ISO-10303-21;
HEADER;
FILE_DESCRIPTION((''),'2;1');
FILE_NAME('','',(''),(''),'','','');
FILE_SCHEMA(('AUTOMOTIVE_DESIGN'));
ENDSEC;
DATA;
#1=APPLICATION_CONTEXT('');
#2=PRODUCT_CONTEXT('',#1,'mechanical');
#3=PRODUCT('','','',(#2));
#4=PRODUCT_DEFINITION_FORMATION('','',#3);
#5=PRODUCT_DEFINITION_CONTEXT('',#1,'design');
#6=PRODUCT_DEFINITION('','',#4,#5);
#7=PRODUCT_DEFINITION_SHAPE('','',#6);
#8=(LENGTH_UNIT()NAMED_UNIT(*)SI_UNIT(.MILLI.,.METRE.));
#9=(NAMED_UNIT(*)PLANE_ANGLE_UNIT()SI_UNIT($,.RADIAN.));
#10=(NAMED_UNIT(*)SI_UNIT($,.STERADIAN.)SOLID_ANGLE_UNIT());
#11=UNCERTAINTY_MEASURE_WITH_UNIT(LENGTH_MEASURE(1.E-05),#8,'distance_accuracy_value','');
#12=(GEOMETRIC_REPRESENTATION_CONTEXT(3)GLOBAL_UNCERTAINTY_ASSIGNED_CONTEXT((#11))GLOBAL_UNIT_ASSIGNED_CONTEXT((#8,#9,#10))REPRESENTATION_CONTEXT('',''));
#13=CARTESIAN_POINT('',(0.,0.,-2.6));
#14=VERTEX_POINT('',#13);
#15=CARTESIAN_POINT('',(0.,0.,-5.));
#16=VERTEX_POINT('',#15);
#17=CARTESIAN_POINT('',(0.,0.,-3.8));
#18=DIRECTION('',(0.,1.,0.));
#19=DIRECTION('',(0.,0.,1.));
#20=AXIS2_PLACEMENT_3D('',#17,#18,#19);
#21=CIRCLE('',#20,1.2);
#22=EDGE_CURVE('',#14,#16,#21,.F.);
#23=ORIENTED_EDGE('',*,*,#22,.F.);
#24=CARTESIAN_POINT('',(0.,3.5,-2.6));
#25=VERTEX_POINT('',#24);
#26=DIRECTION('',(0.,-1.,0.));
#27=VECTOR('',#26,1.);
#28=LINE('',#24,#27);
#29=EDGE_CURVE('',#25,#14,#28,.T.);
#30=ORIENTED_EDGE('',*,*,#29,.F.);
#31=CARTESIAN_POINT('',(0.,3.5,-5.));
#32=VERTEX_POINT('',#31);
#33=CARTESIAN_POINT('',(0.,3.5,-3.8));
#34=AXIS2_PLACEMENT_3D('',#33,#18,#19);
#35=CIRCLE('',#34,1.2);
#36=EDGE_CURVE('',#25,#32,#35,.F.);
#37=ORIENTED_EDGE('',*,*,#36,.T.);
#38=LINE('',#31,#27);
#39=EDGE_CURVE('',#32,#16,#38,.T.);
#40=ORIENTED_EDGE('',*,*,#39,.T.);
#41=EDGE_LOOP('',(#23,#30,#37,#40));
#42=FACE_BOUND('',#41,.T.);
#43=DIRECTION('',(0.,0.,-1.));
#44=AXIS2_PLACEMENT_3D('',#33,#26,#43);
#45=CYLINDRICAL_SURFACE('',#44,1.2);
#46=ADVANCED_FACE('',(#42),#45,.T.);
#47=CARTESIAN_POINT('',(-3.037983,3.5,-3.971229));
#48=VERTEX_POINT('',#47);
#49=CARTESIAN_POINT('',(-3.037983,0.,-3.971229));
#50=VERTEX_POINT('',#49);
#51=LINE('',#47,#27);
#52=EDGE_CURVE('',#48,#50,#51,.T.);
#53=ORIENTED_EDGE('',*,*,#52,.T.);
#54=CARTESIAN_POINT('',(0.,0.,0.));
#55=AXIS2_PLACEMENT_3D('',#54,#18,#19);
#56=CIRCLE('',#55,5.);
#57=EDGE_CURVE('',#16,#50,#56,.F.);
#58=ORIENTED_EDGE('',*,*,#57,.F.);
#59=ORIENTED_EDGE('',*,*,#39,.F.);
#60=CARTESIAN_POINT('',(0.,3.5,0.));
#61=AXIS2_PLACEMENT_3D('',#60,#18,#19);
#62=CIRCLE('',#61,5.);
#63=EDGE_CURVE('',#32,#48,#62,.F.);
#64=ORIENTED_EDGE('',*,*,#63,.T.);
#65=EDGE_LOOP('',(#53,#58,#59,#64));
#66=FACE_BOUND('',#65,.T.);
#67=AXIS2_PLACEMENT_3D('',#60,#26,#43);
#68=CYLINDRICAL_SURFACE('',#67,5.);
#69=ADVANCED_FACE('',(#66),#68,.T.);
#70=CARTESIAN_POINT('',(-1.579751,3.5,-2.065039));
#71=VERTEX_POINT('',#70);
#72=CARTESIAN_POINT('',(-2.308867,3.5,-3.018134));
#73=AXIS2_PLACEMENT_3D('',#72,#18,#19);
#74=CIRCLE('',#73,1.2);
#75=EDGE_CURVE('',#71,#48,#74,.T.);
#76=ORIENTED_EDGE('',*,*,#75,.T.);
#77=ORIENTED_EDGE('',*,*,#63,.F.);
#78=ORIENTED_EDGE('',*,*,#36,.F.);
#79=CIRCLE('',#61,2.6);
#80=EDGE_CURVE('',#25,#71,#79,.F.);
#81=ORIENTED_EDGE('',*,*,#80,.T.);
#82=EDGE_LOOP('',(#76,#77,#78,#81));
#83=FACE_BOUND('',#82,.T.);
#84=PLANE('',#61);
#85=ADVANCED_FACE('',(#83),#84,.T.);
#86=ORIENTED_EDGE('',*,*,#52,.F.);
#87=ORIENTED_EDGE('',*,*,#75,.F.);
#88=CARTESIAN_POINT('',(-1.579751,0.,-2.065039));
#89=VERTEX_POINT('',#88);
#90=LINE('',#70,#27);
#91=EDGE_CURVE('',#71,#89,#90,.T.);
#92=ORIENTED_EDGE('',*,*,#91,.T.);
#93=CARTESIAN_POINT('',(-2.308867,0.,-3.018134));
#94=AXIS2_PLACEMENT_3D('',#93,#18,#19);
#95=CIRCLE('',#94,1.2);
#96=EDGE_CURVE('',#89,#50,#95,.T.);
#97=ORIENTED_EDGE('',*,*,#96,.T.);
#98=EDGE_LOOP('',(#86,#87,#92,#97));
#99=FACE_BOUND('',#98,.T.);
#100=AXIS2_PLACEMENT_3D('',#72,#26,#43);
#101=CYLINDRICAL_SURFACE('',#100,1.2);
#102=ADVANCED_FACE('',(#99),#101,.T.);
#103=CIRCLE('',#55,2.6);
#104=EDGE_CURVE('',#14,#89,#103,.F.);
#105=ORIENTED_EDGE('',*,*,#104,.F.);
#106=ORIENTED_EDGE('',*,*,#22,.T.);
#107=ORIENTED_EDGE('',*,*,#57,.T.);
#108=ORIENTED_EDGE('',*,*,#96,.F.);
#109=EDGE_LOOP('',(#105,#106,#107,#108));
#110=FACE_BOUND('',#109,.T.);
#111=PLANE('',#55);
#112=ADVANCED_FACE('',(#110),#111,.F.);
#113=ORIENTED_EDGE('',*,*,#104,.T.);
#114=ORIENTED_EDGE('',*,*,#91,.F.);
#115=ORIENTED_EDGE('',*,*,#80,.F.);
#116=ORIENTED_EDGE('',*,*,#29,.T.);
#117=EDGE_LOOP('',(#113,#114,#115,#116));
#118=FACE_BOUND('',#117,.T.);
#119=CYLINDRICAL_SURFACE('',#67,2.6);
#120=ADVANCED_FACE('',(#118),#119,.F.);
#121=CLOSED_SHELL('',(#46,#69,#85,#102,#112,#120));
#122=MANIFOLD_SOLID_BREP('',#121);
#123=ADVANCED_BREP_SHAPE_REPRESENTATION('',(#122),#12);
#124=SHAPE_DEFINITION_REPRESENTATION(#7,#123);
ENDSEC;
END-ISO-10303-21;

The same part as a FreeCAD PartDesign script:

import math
import FreeCAD as App
import Part
import Sketcher
Q = App.Units.Quantity

doc = App.newDocument("Part")
body = doc.addObject("PartDesign::Body", "Body")

# Sketch on XZ plane
sketch1 = body.newObject("Sketcher::SketchObject", "Sketch")
sketch1.AttachmentSupport = (doc.getObject("XZ_Plane"), [""])
sketch1.MapMode = "FlatFace"
sketch1.addGeometry(Part.ArcOfCircle(Part.Circle(App.Vector(0, 0, 0), App.Vector(0, 0, 1), 2.6), math.radians(-90), math.radians(233)), False)
sketch1.addGeometry(Part.ArcOfCircle(Part.Circle(App.Vector(-2.3, -3, 0), App.Vector(0, 0, 1), 1.2), math.radians(-127), math.radians(53)), False)
sketch1.addGeometry(Part.ArcOfCircle(Part.Circle(App.Vector(0, 0, 0), App.Vector(0, 0, 1), 5), math.radians(-90), math.radians(233)), False)
sketch1.addGeometry(Part.ArcOfCircle(Part.Circle(App.Vector(0, -3.8, 0), App.Vector(0, 0, 1), 1.2), math.radians(90), math.radians(270)), False)
sketch1.addConstraint(Sketcher.Constraint("Tangent", 0, 2, 1, 2))
sketch1.addConstraint(Sketcher.Constraint("Tangent", 1, 1, 2, 2))
sketch1.addConstraint(Sketcher.Constraint("Tangent", 2, 1, 3, 2))
sketch1.addConstraint(Sketcher.Constraint("Tangent", 3, 1, 0, 1))
sketch1.addConstraint(Sketcher.Constraint("Coincident", 0, 3, -1, 1))
sketch1.addConstraint(Sketcher.Constraint("Coincident", 2, 3, -1, 1))
sketch1.addConstraint(Sketcher.Constraint("PointOnObject", 3, 3, -2))
sketch1.addConstraint(Sketcher.Constraint("Radius", 2, Q("5 mm")))
sketch1.addConstraint(Sketcher.Constraint("Radius", 0, Q("2.6 mm")))
sketch1.addConstraint(Sketcher.Constraint("DistanceX", 0, 2, -1, 1, Q("1.579751 mm")))
pad1 = body.newObject("PartDesign::Pad", "Pad")
pad1.Profile = sketch1
pad1.Length = 3.5
pad1.Reversed = True

doc.recompute()
